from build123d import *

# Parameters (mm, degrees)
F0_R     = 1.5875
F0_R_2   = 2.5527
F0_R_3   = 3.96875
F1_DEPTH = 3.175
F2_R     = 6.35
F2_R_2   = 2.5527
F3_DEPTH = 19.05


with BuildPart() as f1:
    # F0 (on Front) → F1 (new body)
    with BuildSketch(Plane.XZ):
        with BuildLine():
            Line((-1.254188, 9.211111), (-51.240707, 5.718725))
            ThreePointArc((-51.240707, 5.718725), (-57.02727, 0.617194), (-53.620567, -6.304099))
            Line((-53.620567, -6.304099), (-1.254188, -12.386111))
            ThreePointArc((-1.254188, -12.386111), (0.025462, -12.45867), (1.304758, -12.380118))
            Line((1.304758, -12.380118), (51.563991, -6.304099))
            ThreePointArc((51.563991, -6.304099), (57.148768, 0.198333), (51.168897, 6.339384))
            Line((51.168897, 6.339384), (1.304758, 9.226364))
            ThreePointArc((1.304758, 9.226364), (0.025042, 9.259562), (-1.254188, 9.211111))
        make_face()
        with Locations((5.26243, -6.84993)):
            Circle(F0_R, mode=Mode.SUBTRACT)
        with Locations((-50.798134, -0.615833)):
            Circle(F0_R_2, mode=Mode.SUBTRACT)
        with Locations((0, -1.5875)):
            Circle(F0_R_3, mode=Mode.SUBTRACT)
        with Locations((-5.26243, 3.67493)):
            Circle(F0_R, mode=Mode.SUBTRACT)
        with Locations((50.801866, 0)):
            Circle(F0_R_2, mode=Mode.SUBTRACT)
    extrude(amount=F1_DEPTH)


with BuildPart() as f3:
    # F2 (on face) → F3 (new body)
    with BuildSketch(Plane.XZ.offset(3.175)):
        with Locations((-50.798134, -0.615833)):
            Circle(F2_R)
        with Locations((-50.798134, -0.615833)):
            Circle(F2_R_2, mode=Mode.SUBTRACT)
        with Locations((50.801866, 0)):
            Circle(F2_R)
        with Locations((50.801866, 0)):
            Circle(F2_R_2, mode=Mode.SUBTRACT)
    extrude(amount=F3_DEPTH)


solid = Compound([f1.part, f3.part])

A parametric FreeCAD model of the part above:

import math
import FreeCAD as App
import Part
import Sketcher
from FreeCAD import Vector
Q = App.Units.Quantity

doc = App.newDocument("Part")
body = doc.addObject("PartDesign::Body", "Body")

# Sketch on XZ plane
sketch1 = doc.addObject("Sketcher::SketchObject", "Sketch")
body.addObject(sketch1)
sketch1.AttachmentSupport = (doc.XZ_Plane, [""])
sketch1.MapMode = "FlatFace"
sketch1.addGeometry([
    Part.LineSegment(Vector(-1.254188, 9.211111, 0), Vector(-51.240707, 5.718725, 0)),  # 0
    Part.ArcOfCircle(Part.Circle(Vector(-50.798133, -0.615833, 0), Vector(0, 0, 1), 6.35), math.radians(93.996563), math.radians(243.61007)),  # 1
    Part.LineSegment(Vector(-53.620567, -6.304099, 0), Vector(-1.254188, -12.386111, 0)),  # 2
    Part.ArcOfCircle(Part.Circle(Vector(0.000002, -1.587458, 0), Vector(0, 0, 1), 10.871242), math.radians(-96.624832), math.radians(-83.106798)),  # 3
    Part.LineSegment(Vector(1.304758, -12.380118, 0), Vector(51.563991, -6.304099, 0)),  # 4
    Part.ArcOfCircle(Part.Circle(Vector(50.801866, 0, 0), Vector(0, 0, 1), 6.35), math.radians(-83.106762), math.radians(86.686449)),  # 5
    Part.LineSegment(Vector(51.168897, 6.339384, 0), Vector(1.304758, 9.226364, 0)),  # 6
    Part.ArcOfCircle(Part.Circle(Vector(0.144674, -10.810713, 0), Vector(0, 0, 1), 20.070631), math.radians(86.686452), math.radians(93.996581)),  # 7
    Part.Circle(Vector(5.26243, -6.84993, 0), Vector(0, 0, 1), 1.5875),  # 8
    Part.Circle(Vector(-50.798134, -0.615833, 0), Vector(0, 0, 1), 2.5527),  # 9
    Part.Circle(Vector(0, -1.5875, 0), Vector(0, 0, 1), 3.96875),  # 10
    Part.Circle(Vector(-5.26243, 3.67493, 0), Vector(0, 0, 1), 1.5875),  # 11
    Part.Circle(Vector(50.801866, 0, 0), Vector(0, 0, 1), 2.5527),  # 12
], False)
sketch1.addConstraint([
    Sketcher.Constraint("Coincident", 0, 2, 1, 1),
    Sketcher.Constraint("Coincident", 1, 2, 2, 1),
    Sketcher.Constraint("Coincident", 2, 2, 3, 1),
    Sketcher.Constraint("Coincident", 3, 2, 4, 1),
    Sketcher.Constraint("Coincident", 4, 2, 5, 1),
    Sketcher.Constraint("Coincident", 5, 2, 6, 1),
    Sketcher.Constraint("Coincident", 6, 2, 7, 1),
    Sketcher.Constraint("Coincident", 7, 2, 0, 1),
    Sketcher.Constraint("Coincident", 9, 3, 1, 3),
    Sketcher.Constraint("Coincident", 12, 3, 5, 3),
    Sketcher.Constraint("PointOnObject", 3, 3, -2),
    Sketcher.Constraint("PointOnObject", 5, 3, -1),
    Sketcher.Constraint("PointOnObject", 10, 3, -2),
    Sketcher.Constraint("Radius", 1, Q("0.25 in")),
    Sketcher.Constraint("Radius", 5, Q("0.25 in")),
    Sketcher.Constraint("Diameter", 8, Q("0.125 in")),
    Sketcher.Constraint("Diameter", 9, Q("0.201 in")),
    Sketcher.Constraint("Diameter", 10, Q("0.3125 in")),
    Sketcher.Constraint("Diameter", 11, Q("0.125 in")),
    Sketcher.Constraint("Diameter", 12, Q("0.201 in")),
    Sketcher.Constraint("DistanceX", 1, 3, 5, 3, Q("4 in")),
    Sketcher.Constraint("DistanceY", 10, 3, -1, 1, Q("0.0625 in")),
    Sketcher.Constraint("Radius", 7, 20.070631),
    Sketcher.Constraint("Radius", 3, 10.871242),
    Sketcher.Constraint("DistanceY", 1, 2, -1, 1, 6.304099),
    Sketcher.Constraint("DistanceY", 4, 2, -1, 1, 6.304099),
    Sketcher.Constraint("DistanceY", 2, 2, 7, 3, 1.575398),
    Sketcher.Constraint("Distance", 0, 50.108371),
    Sketcher.Constraint("Distance", 2, 52.718389),
    Sketcher.Constraint("DistanceX", -1, 1, 8, 3, 5.26243),
    Sketcher.Constraint("DistanceY", 8, 3, -1, 1, 6.84993),
    Sketcher.Constraint("DistanceX", 11, 3, -1, 1, 5.26243),
    Sketcher.Constraint("DistanceY", -1, 1, 11, 3, 3.67493),
    Sketcher.Constraint("DistanceX", 2, 2, -1, 1, 1.254188),
    Sketcher.Constraint("DistanceY", 2, 2, -1, 1, 12.386111),
    Sketcher.Constraint("DistanceX", -1, 1, 4, 2, 51.563991),
    Sketcher.Constraint("DistanceX", -1, 1, 6, 2, 1.304758),
    Sketcher.Constraint("DistanceX", 7, 2, -1, 1, 1.254188),
    Sketcher.Constraint("DistanceY", -1, 1, 7, 2, 9.211111),
    Sketcher.Constraint("DistanceY", 3, 2, 3, 3, 10.79266),
    Sketcher.Constraint("DistanceX", 5, 3, 5, 2, 0.367031),
])
pad1 = doc.addObject("PartDesign::Pad", "Pad")
body.addObject(pad1)
pad1.Profile = sketch1
pad1.Length = Q("0.125 in")
body2 = doc.addObject("PartDesign::Body", "Body001")
body2.AllowCompound = True

# Sketch on XZ plane
sketch2 = doc.addObject("Sketcher::SketchObject", "Sketch001")
body2.addObject(sketch2)
sketch2.AttachmentSupport = (doc.getObject("XZ_Plane001"), [""])
sketch2.MapMode = "FlatFace"
sketch2.AttachmentOffset = App.Placement(Vector(0, 0, 0.125 * 25.4), App.Rotation())
sketch2.addGeometry([
    Part.Circle(Vector(-50.798134, -0.615833, 0), Vector(0, 0, 1), 6.35),
    Part.Circle(Vector(-50.798134, -0.615833, 0), Vector(0, 0, 1), 2.5527),
    Part.Circle(Vector(50.801866, 0, 0), Vector(0, 0, 1), 6.35),
    Part.Circle(Vector(50.801866, 0, 0), Vector(0, 0, 1), 2.5527),
], False)
sketch2.addConstraint([
    Sketcher.Constraint("Coincident", 1, 3, 0, 3),
    Sketcher.Constraint("Coincident", 3, 3, 2, 3),
    Sketcher.Constraint("Equal", 0, 2),
    Sketcher.Constraint("Equal", 1, 3),
    Sketcher.Constraint("PointOnObject", 2, 3, -1),
    Sketcher.Constraint("Diameter", 0, Q("0.5 in")),
    Sketcher.Constraint("Diameter", 1, Q("0.201 in")),
    Sketcher.Constraint("DistanceX", 0, 3, 2, 3, Q("4 in")),
    Sketcher.Constraint("DistanceX", 0, 3, -1, 1, 50.798134),
    Sketcher.Constraint("DistanceY", 0, 3, -1, 1, 0.615833),
])
pad2 = doc.addObject("PartDesign::Pad", "Pad001")
body2.addObject(pad2)
pad2.Profile = sketch2
pad2.Length = Q("0.75 in")

doc.recompute()
